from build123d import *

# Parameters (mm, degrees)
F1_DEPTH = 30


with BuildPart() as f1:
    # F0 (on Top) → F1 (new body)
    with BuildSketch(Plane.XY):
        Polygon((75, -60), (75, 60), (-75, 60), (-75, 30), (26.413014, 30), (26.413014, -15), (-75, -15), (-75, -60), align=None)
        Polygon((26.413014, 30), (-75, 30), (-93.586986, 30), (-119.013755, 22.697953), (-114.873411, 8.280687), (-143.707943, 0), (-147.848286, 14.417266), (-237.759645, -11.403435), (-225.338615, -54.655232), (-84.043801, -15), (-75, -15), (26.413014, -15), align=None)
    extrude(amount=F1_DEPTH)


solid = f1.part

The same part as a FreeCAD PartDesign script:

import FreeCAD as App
import Part
import Sketcher
Q = App.Units.Quantity


def add_polygon(sketch, points):
    """Adds a closed chain of lines whose ends are joined by coincident constraints."""
    first, n = sketch.GeometryCount, len(points)
    for a, b in zip(points, points[1:] + points[:1]):
        sketch.addGeometry(Part.LineSegment(App.Vector(*a, 0), App.Vector(*b, 0)), False)
    for i in range(n):
        sketch.addConstraint(Sketcher.Constraint("Coincident", first + i, 2, first + (i + 1) % n, 1))

doc = App.newDocument("Part")
body = doc.addObject("PartDesign::Body", "Body")

# Sketch on XY plane
sketch1 = body.newObject("Sketcher::SketchObject", "Sketch")
sketch1.AttachmentSupport = (doc.getObject("XY_Plane"), [""])
sketch1.MapMode = "FlatFace"
add_polygon(sketch1, [(75, -60), (75, 60), (-75, 60), (-75, 30), (-94, 30), (-119, 23), (-115, 8), (-144, 0), (-148, 14), (-238, -11), (-225, -55), (-84, -15), (-75, -15), (-75, -60)])  # lines 0-13
sketch1.addConstraint([
    Sketcher.Constraint("Vertical", 0),
    Sketcher.Constraint("Horizontal", 1),
    Sketcher.Constraint("Vertical", 2),
    Sketcher.Constraint("Horizontal", 3),
    Sketcher.Constraint("Horizontal", 11),
    Sketcher.Constraint("Vertical", 12),
    Sketcher.Constraint("Horizontal", 13),
    Sketcher.Constraint("Symmetric", 0, 2, 12, 2, -1, 1),
    Sketcher.Constraint("PointOnObject", 6, 2, -1),
    Sketcher.Constraint("Perpendicular", 4, 5),
    Sketcher.Constraint("Perpendicular", 5, 6),
    Sketcher.Constraint("Perpendicular", 6, 7),
    Sketcher.Constraint("Perpendicular", 7, 8),
    Sketcher.Constraint("Perpendicular", 8, 9),
    Sketcher.Constraint("Vertical", 2, 2, 11, 2),
    Sketcher.Constraint("Equal", 5, 7),
    Sketcher.Constraint("DistanceX", 1, 2, 1, 1, Q("150 mm")),
    Sketcher.Constraint("DistanceY", 0, 1, 0, 2, Q("120 mm")),
    Sketcher.Constraint("DistanceY", 2, 2, 2, 1, Q("30 mm")),
    Sketcher.Constraint("DistanceY", 12, 2, 12, 1, Q("45 mm")),
    Sketcher.Constraint("Distance", 5, Q("15 mm")),
    Sketcher.Constraint("Distance", 6, Q("30 mm")),
    Sketcher.Constraint("Distance", 9, Q("44.999999 mm")),
    Sketcher.Constraint("DistanceX", 11, 1, 11, 2, Q("9.043801 mm")),
    Sketcher.Constraint("Distance", 4, Q("26.454498 mm")),
    Sketcher.Constraint("DistanceY", 8, 2, 7, 2, Q("25.820701 mm")),
    Sketcher.Constraint("DistanceX", 3, 2, 3, 1, Q("18.586986 mm")),
])
pad1 = body.newObject("PartDesign::Pad", "Pad")
pad1.Profile = sketch1
pad1.Length = 30

doc.recompute()
